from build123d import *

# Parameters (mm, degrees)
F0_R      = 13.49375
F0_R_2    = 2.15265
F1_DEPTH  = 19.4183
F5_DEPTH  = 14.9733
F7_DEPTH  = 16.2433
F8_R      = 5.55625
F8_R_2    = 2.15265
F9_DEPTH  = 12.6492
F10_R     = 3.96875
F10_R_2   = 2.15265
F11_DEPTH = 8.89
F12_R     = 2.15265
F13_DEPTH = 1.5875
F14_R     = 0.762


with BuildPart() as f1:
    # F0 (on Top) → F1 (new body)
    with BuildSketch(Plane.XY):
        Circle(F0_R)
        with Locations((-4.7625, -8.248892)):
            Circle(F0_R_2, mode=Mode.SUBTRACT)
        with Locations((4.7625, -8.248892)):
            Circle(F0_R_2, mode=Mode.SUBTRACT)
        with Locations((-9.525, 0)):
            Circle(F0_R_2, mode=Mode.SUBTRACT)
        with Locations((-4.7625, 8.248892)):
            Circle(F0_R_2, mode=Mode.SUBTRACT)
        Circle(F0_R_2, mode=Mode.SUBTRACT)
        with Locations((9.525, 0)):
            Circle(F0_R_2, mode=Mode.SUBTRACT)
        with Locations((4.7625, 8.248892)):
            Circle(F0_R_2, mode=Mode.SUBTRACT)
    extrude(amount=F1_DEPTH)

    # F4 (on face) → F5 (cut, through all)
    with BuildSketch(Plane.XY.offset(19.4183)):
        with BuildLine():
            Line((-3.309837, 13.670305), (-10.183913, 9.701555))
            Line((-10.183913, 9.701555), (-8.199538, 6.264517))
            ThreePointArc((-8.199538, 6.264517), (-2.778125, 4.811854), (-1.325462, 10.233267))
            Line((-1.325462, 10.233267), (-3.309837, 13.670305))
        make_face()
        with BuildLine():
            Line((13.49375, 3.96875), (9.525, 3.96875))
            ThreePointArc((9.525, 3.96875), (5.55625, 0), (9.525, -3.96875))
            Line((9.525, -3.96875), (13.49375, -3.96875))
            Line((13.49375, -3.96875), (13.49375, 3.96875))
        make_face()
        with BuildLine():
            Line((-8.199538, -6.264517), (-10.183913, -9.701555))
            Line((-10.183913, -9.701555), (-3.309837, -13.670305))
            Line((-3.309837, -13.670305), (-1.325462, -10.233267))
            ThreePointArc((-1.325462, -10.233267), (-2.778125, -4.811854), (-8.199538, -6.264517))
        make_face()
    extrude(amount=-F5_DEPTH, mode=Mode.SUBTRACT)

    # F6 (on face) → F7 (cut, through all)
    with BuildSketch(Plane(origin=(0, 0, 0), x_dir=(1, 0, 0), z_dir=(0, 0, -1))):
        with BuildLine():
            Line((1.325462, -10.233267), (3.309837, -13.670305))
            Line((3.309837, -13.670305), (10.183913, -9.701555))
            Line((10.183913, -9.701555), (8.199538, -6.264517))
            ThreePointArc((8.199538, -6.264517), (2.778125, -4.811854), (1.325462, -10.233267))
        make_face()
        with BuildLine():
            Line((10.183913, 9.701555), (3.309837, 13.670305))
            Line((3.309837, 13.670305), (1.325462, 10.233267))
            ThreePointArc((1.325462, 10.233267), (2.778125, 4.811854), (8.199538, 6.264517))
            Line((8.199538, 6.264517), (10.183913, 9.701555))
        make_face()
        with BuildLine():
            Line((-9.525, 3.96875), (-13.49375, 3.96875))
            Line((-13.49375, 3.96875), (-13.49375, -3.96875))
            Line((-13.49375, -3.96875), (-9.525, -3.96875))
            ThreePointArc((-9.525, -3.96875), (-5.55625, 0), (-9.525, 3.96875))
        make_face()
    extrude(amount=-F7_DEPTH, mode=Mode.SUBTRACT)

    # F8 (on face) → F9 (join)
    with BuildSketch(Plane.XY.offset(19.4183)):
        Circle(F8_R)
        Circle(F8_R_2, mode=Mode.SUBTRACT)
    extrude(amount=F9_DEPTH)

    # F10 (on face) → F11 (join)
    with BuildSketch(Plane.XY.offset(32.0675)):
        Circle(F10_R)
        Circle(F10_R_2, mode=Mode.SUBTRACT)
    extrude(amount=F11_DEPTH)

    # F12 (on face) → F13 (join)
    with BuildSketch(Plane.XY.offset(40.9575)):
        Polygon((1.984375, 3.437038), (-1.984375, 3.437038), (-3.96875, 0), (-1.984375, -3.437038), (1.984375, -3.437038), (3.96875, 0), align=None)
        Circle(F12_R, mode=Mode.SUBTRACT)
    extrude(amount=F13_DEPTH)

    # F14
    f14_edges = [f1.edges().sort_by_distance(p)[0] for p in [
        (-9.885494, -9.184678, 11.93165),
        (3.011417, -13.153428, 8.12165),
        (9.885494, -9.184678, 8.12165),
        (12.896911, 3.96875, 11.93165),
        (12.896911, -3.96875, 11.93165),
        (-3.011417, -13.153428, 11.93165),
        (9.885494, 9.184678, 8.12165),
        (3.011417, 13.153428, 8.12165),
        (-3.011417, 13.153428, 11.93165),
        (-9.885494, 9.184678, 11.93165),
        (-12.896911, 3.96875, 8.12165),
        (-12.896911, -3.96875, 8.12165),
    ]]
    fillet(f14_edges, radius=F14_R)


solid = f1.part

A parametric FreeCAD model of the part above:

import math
import FreeCAD as App
import Part
import Sketcher

V = App.Vector
Q = App.Units.Quantity


def edges_at(feature, points):
    """Names of the edges that pass closest to the given points."""
    edges = feature.Shape.Edges
    near = lambda p: min(range(len(edges)), key=lambda i: edges[i].distToShape(Part.Vertex(*p))[0])
    return sorted({f"Edge{near(p) + 1}" for p in points})

doc = App.newDocument("Part")
body = doc.addObject("PartDesign::Body", "Body")

sketch1 = body.newObject("Sketcher::SketchObject", "Sketch")
sketch1.AttachmentSupport = (doc.getObject("XY_Plane"), [""])
sketch1.MapMode = "FlatFace"
sketch1.addGeometry([
    Part.Circle(V(0, 0, 0), V(0, 0, 1), 13.49375),
    Part.Circle(V(-4.7625, -8.248892, 0), V(0, 0, 1), 2.15265),
    Part.Circle(V(4.7625, -8.248892, 0), V(0, 0, 1), 2.15265),
    Part.Circle(V(-9.525, 0, 0), V(0, 0, 1), 2.15265),
    Part.Circle(V(-4.7625, 8.248892, 0), V(0, 0, 1), 2.15265),
    Part.Circle(V(0, 0, 0), V(0, 0, 1), 2.15265),
    Part.Circle(V(9.525, 0, 0), V(0, 0, 1), 2.15265),
    Part.Circle(V(4.7625, 8.248892, 0), V(0, 0, 1), 2.15265),
], False)
sketch1.addConstraint([
    Sketcher.Constraint("Coincident", 0, 3, -1, 1),
    Sketcher.Constraint("Coincident", 5, 3, -1, 1),
    Sketcher.Constraint("Equal", 1, 2),
    Sketcher.Constraint("Equal", 2, 3),
    Sketcher.Constraint("Equal", 3, 4),
    Sketcher.Constraint("Equal", 4, 5),
    Sketcher.Constraint("Equal", 5, 6),
    Sketcher.Constraint("Equal", 6, 7),
    Sketcher.Constraint("Symmetric", 2, 3, 4, 3, -1, 1),
    Sketcher.Constraint("Symmetric", 3, 3, 6, 3, -1, 1),
    Sketcher.Constraint("Symmetric", 1, 3, 7, 3, -1, 1),
    Sketcher.Constraint("Symmetric", 1, 3, 2, 3, -2),
    Sketcher.Constraint("PointOnObject", 3, 3, -1),
    Sketcher.Constraint("Diameter", 0, Q("1.0625 in")),
    Sketcher.Constraint("Diameter", 1, Q("0.1695 in")),
    Sketcher.Constraint("DistanceX", 1, 3, -1, 1, Q("0.1875 in")),
    Sketcher.Constraint("DistanceX", 3, 3, -1, 1, Q("0.375 in")),
    Sketcher.Constraint("DistanceY", 1, 3, -1, 1, 8.248892),
])
pad1 = body.newObject("PartDesign::Pad", "Pad")
pad1.Profile = sketch1
pad1.Length = Q("0.7645 in")

sketch2 = body.newObject("Sketcher::SketchObject", "Sketch001")
sketch2.AttachmentSupport = (doc.getObject("XY_Plane"), [""])
sketch2.MapMode = "FlatFace"
sketch2.AttachmentOffset = App.Placement(V(0, 0, 0.7645 * 25.4), App.Rotation())
sketch2.addGeometry([
    Part.LineSegment(V(-3.309837, 13.670305, 0), V(-10.183913, 9.701555, 0)),
    Part.LineSegment(V(-10.183913, 9.701555, 0), V(-8.199538, 6.264517, 0)),
    Part.ArcOfCircle(Part.Circle(V(-4.7625, 8.248892, 0), V(0, 0, 1), 3.96875), math.radians(-149.999998), math.radians(30.000002)),
    Part.LineSegment(V(-1.325462, 10.233267, 0), V(-3.309837, 13.670305, 0)),
    Part.LineSegment(V(13.49375, 3.96875, 0), V(9.525, 3.96875, 0)),
    Part.ArcOfCircle(Part.Circle(V(9.525, 0, 0), V(0, 0, 1), 3.96875), math.radians(90), math.radians(270)),
    Part.LineSegment(V(9.525, -3.96875, 0), V(13.49375, -3.96875, 0)),
    Part.LineSegment(V(13.49375, -3.96875, 0), V(13.49375, 3.96875, 0)),
    Part.LineSegment(V(-8.199538, -6.264517, 0), V(-10.183913, -9.701555, 0)),
    Part.LineSegment(V(-10.183913, -9.701555, 0), V(-3.309837, -13.670305, 0)),
    Part.LineSegment(V(-3.309837, -13.670305, 0), V(-1.325462, -10.233267, 0)),
    Part.ArcOfCircle(Part.Circle(V(-4.7625, -8.248892, 0), V(0, 0, 1), 3.96875), math.radians(-30.000002), math.radians(149.999998)),
], False)
sketch2.addConstraint([
    Sketcher.Constraint("Coincident", 0, 2, 1, 1),
    Sketcher.Constraint("Tangent", 1, 2, 2, 1),
    Sketcher.Constraint("Tangent", 2, 2, 3, 1),
    Sketcher.Constraint("Coincident", 3, 2, 0, 1),
    Sketcher.Constraint("Tangent", 4, 2, 5, 1),
    Sketcher.Constraint("Tangent", 5, 2, 6, 1),
    Sketcher.Constraint("Coincident", 6, 2, 7, 1),
    Sketcher.Constraint("Coincident", 7, 2, 4, 1),
    Sketcher.Constraint("Coincident", 8, 2, 9, 1),
    Sketcher.Constraint("Coincident", 9, 2, 10, 1),
    Sketcher.Constraint("Tangent", 10, 2, 11, 1),
    Sketcher.Constraint("Tangent", 11, 2, 8, 1),
    Sketcher.Constraint("Horizontal", 4),
    Sketcher.Constraint("Horizontal", 6),
    Sketcher.Constraint("Vertical", 7),
    Sketcher.Constraint("Equal", 2, 5),
    Sketcher.Constraint("Equal", 5, 11),
    Sketcher.Constraint("Symmetric", 2, 3, 11, 3, -1),
    Sketcher.Constraint("Symmetric", 0, 2, 8, 2, -1),
    Sketcher.Constraint("Symmetric", 3, 2, 9, 2, -1),
    Sketcher.Constraint("PointOnObject", 5, 3, -1),
    Sketcher.Constraint("Perpendicular", 0, 1),
    Sketcher.Constraint("Parallel", 1, 3),
    Sketcher.Constraint("Angle", 0, Q("-149.999998 deg")),
    Sketcher.Constraint("Radius", 2, Q("0.15625 in")),
    Sketcher.Constraint("DistanceX", 4, 2, 4, 1, Q("0.15625 in")),
    Sketcher.Constraint("Distance", 1, Q("0.15625 in")),
    Sketcher.Constraint("DistanceX", 2, 3, -1, 1, Q("0.1875 in")),
    Sketcher.Constraint("DistanceX", -1, 1, 5, 3, Q("0.375 in")),
    Sketcher.Constraint("DistanceY", 11, 3, 1, 2, 14.513409),
])
pocket1 = body.newObject("PartDesign::Pocket", "Pocket")
pocket1.Profile = sketch2
pocket1.Length = Q("0.5895 in")

sketch3 = body.newObject("Sketcher::SketchObject", "Sketch002")
sketch3.AttachmentSupport = (doc.getObject("XY_Plane"), [""])
sketch3.MapMode = "FlatFace"
sketch3.addGeometry([
    Part.LineSegment(V(1.325462, 10.233267, 0), V(3.309837, 13.670305, 0)),
    Part.LineSegment(V(3.309837, 13.670305, 0), V(10.183913, 9.701555, 0)),
    Part.LineSegment(V(10.183913, 9.701555, 0), V(8.199538, 6.264517, 0)),
    Part.ArcOfCircle(Part.Circle(V(4.7625, 8.248892, 0), V(0, 0, 1), 3.96875), math.radians(149.999998), math.radians(329.999998)),
    Part.LineSegment(V(10.183913, -9.701555, 0), V(3.309837, -13.670305, 0)),
    Part.LineSegment(V(3.309837, -13.670305, 0), V(1.325462, -10.233267, 0)),
    Part.ArcOfCircle(Part.Circle(V(4.7625, -8.248892, 0), V(0, 0, 1), 3.96875), math.radians(30.000002), math.radians(210.000002)),
    Part.LineSegment(V(8.199538, -6.264517, 0), V(10.183913, -9.701555, 0)),
    Part.LineSegment(V(-9.525, -3.96875, 0), V(-13.49375, -3.96875, 0)),
    Part.LineSegment(V(-13.49375, -3.96875, 0), V(-13.49375, 3.96875, 0)),
    Part.LineSegment(V(-13.49375, 3.96875, 0), V(-9.525, 3.96875, 0)),
    Part.ArcOfCircle(Part.Circle(V(-9.525, 0, 0), V(0, 0, 1), 3.96875), math.radians(-90), math.radians(90)),
], False)
sketch3.addConstraint([
    Sketcher.Constraint("Coincident", 0, 2, 1, 1),
    Sketcher.Constraint("Coincident", 1, 2, 2, 1),
    Sketcher.Constraint("Tangent", 2, 2, 3, 2),
    Sketcher.Constraint("Tangent", 3, 1, 0, 1),
    Sketcher.Constraint("Coincident", 4, 2, 5, 1),
    Sketcher.Constraint("Tangent", 5, 2, 6, 2),
    Sketcher.Constraint("Tangent", 6, 1, 7, 1),
    Sketcher.Constraint("Coincident", 7, 2, 4, 1),
    Sketcher.Constraint("Coincident", 8, 2, 9, 1),
    Sketcher.Constraint("Coincident", 9, 2, 10, 1),
    Sketcher.Constraint("Tangent", 10, 2, 11, 2),
    Sketcher.Constraint("Tangent", 11, 1, 8, 1),
    Sketcher.Constraint("Horizontal", 8),
    Sketcher.Constraint("Vertical", 9),
    Sketcher.Constraint("Horizontal", 10),
    Sketcher.Constraint("Equal", 3, 6),
    Sketcher.Constraint("Equal", 6, 11),
    Sketcher.Constraint("Symmetric", 3, 3, 6, 3, -1),
    Sketcher.Constraint("Symmetric", 0, 2, 4, 2, -1),
    Sketcher.Constraint("Symmetric", 1, 2, 7, 2, -1),
    Sketcher.Constraint("PointOnObject", 11, 3, -1),
    Sketcher.Constraint("Perpendicular", 0, 1),
    Sketcher.Constraint("Perpendicular", 1, 2),
    Sketcher.Constraint("Angle", 0, Q("59.999998 deg")),
    Sketcher.Constraint("Radius", 3, Q("0.15625 in")),
    Sketcher.Constraint("DistanceX", 8, 2, 8, 1, Q("0.15625 in")),
    Sketcher.Constraint("Distance", 0, Q("0.15625 in")),
    Sketcher.Constraint("DistanceX", -1, 1, 3, 3, Q("0.1875 in")),
    Sketcher.Constraint("DistanceX", 11, 3, -1, 1, Q("0.375 in")),
    Sketcher.Constraint("DistanceY", 6, 3, 2, 2, 14.513409),
])
pocket2 = body.newObject("PartDesign::Pocket", "Pocket001")
pocket2.Profile = sketch3
pocket2.Length = Q("0.6395 in")
pocket2.Reversed = True

sketch4 = body.newObject("Sketcher::SketchObject", "Sketch003")
sketch4.AttachmentSupport = (doc.getObject("XY_Plane"), [""])
sketch4.MapMode = "FlatFace"
sketch4.AttachmentOffset = App.Placement(V(0, 0, 0.7645 * 25.4), App.Rotation())
sketch4.addGeometry([
    Part.Circle(V(0, 0, 0), V(0, 0, 1), 5.55625),
    Part.Circle(V(0, 0, 0), V(0, 0, 1), 2.15265),
], False)
sketch4.addConstraint([
    Sketcher.Constraint("Coincident", 0, 3, -1, 1),
    Sketcher.Constraint("Coincident", 1, 3, -1, 1),
    Sketcher.Constraint("Diameter", 0, Q("0.4375 in")),
    Sketcher.Constraint("Diameter", 1, Q("0.1695 in")),
])
pad2 = body.newObject("PartDesign::Pad", "Pad001")
pad2.Profile = sketch4
pad2.Length = Q("0.498 in")

sketch5 = body.newObject("Sketcher::SketchObject", "Sketch004")
sketch5.AttachmentSupport = (doc.getObject("XY_Plane"), [""])
sketch5.MapMode = "FlatFace"
sketch5.AttachmentOffset = App.Placement(V(0, 0, 1.2625 * 25.4), App.Rotation())
sketch5.addGeometry([
    Part.Circle(V(0, 0, 0), V(0, 0, 1), 3.96875),
    Part.Circle(V(0, 0, 0), V(0, 0, 1), 2.15265),
], False)
sketch5.addConstraint([
    Sketcher.Constraint("Coincident", 0, 3, -1, 1),
    Sketcher.Constraint("Coincident", 1, 3, -1, 1),
    Sketcher.Constraint("Diameter", 0, Q("0.3125 in")),
    Sketcher.Constraint("Diameter", 1, Q("0.1695 in")),
])
pad3 = body.newObject("PartDesign::Pad", "Pad002")
pad3.Profile = sketch5
pad3.Length = Q("0.35 in")

sketch6 = body.newObject("Sketcher::SketchObject", "Sketch005")
sketch6.AttachmentSupport = (doc.getObject("XY_Plane"), [""])
sketch6.MapMode = "FlatFace"
sketch6.AttachmentOffset = App.Placement(V(0, 0, 1.6125 * 25.4), App.Rotation())
sketch6.addGeometry([
    Part.LineSegment(V(1.984375, 3.437038, 0), V(-1.984375, 3.437038, 0)),
    Part.LineSegment(V(-1.984375, 3.437038, 0), V(-3.96875, 0, 0)),
    Part.LineSegment(V(-3.96875, 0, 0), V(-1.984375, -3.437038, 0)),
    Part.LineSegment(V(-1.984375, -3.437038, 0), V(1.984375, -3.437038, 0)),
    Part.LineSegment(V(1.984375, -3.437038, 0), V(3.96875, 0, 0)),
    Part.LineSegment(V(3.96875, 0, 0), V(1.984375, 3.437038, 0)),
    Part.Circle(V(0, 0, 0), V(0, 0, 1), 2.15265),
], False)
sketch6.addConstraint([
    Sketcher.Constraint("Coincident", 0, 2, 1, 1),
    Sketcher.Constraint("Coincident", 1, 2, 2, 1),
    Sketcher.Constraint("Coincident", 2, 2, 3, 1),
    Sketcher.Constraint("Coincident", 3, 2, 4, 1),
    Sketcher.Constraint("Coincident", 4, 2, 5, 1),
    Sketcher.Constraint("Coincident", 5, 2, 0, 1),
    Sketcher.Constraint("Horizontal", 0),
    Sketcher.Constraint("Horizontal", 3),
    Sketcher.Constraint("Coincident", 6, 3, -1, 1),
    Sketcher.Constraint("Symmetric", 0, 2, 3, 2, -1, 1),
    Sketcher.Constraint("Symmetric", 1, 2, 4, 2, -1, 1),
    Sketcher.Constraint("PointOnObject", 1, 2, -1),
    Sketcher.Constraint("Parallel", 2, 5),
    Sketcher.Constraint("Vertical", 0, 2, 2, 2),
    Sketcher.Constraint("Angle", 1, Q("-120.000002 deg")),
    Sketcher.Constraint("Diameter", 6, Q("0.1695 in")),
    Sketcher.Constraint("DistanceX", 0, 2, 0, 1, Q("0.15625 in")),
    Sketcher.Constraint("Distance", 1, Q("0.15625 in")),
])
pad4 = body.newObject("PartDesign::Pad", "Pad003")
pad4.Profile = sketch6
pad4.Length = Q("0.0625 in")
doc.recompute()

fillet = body.newObject("PartDesign::Fillet", "Fillet")
fillet.Base = (pad4, edges_at(pad4, [
    (-9.885, -9.185, 11.932),
    (3.011, -13.153, 8.122),
    (9.885, -9.185, 8.122),
    (12.897, 3.969, 11.932),
    (12.897, -3.969, 11.932),
    (-3.011, -13.153, 11.932),
    (9.885, 9.185, 8.122),
    (3.011, 13.153, 8.122),
    (-3.011, 13.153, 11.932),
    (-9.885, 9.185, 11.932),
    (-12.897, 3.969, 8.122),
    (-12.897, -3.969, 8.122),
]))
fillet.Radius = Q("0.03 in")

doc.recompute()
